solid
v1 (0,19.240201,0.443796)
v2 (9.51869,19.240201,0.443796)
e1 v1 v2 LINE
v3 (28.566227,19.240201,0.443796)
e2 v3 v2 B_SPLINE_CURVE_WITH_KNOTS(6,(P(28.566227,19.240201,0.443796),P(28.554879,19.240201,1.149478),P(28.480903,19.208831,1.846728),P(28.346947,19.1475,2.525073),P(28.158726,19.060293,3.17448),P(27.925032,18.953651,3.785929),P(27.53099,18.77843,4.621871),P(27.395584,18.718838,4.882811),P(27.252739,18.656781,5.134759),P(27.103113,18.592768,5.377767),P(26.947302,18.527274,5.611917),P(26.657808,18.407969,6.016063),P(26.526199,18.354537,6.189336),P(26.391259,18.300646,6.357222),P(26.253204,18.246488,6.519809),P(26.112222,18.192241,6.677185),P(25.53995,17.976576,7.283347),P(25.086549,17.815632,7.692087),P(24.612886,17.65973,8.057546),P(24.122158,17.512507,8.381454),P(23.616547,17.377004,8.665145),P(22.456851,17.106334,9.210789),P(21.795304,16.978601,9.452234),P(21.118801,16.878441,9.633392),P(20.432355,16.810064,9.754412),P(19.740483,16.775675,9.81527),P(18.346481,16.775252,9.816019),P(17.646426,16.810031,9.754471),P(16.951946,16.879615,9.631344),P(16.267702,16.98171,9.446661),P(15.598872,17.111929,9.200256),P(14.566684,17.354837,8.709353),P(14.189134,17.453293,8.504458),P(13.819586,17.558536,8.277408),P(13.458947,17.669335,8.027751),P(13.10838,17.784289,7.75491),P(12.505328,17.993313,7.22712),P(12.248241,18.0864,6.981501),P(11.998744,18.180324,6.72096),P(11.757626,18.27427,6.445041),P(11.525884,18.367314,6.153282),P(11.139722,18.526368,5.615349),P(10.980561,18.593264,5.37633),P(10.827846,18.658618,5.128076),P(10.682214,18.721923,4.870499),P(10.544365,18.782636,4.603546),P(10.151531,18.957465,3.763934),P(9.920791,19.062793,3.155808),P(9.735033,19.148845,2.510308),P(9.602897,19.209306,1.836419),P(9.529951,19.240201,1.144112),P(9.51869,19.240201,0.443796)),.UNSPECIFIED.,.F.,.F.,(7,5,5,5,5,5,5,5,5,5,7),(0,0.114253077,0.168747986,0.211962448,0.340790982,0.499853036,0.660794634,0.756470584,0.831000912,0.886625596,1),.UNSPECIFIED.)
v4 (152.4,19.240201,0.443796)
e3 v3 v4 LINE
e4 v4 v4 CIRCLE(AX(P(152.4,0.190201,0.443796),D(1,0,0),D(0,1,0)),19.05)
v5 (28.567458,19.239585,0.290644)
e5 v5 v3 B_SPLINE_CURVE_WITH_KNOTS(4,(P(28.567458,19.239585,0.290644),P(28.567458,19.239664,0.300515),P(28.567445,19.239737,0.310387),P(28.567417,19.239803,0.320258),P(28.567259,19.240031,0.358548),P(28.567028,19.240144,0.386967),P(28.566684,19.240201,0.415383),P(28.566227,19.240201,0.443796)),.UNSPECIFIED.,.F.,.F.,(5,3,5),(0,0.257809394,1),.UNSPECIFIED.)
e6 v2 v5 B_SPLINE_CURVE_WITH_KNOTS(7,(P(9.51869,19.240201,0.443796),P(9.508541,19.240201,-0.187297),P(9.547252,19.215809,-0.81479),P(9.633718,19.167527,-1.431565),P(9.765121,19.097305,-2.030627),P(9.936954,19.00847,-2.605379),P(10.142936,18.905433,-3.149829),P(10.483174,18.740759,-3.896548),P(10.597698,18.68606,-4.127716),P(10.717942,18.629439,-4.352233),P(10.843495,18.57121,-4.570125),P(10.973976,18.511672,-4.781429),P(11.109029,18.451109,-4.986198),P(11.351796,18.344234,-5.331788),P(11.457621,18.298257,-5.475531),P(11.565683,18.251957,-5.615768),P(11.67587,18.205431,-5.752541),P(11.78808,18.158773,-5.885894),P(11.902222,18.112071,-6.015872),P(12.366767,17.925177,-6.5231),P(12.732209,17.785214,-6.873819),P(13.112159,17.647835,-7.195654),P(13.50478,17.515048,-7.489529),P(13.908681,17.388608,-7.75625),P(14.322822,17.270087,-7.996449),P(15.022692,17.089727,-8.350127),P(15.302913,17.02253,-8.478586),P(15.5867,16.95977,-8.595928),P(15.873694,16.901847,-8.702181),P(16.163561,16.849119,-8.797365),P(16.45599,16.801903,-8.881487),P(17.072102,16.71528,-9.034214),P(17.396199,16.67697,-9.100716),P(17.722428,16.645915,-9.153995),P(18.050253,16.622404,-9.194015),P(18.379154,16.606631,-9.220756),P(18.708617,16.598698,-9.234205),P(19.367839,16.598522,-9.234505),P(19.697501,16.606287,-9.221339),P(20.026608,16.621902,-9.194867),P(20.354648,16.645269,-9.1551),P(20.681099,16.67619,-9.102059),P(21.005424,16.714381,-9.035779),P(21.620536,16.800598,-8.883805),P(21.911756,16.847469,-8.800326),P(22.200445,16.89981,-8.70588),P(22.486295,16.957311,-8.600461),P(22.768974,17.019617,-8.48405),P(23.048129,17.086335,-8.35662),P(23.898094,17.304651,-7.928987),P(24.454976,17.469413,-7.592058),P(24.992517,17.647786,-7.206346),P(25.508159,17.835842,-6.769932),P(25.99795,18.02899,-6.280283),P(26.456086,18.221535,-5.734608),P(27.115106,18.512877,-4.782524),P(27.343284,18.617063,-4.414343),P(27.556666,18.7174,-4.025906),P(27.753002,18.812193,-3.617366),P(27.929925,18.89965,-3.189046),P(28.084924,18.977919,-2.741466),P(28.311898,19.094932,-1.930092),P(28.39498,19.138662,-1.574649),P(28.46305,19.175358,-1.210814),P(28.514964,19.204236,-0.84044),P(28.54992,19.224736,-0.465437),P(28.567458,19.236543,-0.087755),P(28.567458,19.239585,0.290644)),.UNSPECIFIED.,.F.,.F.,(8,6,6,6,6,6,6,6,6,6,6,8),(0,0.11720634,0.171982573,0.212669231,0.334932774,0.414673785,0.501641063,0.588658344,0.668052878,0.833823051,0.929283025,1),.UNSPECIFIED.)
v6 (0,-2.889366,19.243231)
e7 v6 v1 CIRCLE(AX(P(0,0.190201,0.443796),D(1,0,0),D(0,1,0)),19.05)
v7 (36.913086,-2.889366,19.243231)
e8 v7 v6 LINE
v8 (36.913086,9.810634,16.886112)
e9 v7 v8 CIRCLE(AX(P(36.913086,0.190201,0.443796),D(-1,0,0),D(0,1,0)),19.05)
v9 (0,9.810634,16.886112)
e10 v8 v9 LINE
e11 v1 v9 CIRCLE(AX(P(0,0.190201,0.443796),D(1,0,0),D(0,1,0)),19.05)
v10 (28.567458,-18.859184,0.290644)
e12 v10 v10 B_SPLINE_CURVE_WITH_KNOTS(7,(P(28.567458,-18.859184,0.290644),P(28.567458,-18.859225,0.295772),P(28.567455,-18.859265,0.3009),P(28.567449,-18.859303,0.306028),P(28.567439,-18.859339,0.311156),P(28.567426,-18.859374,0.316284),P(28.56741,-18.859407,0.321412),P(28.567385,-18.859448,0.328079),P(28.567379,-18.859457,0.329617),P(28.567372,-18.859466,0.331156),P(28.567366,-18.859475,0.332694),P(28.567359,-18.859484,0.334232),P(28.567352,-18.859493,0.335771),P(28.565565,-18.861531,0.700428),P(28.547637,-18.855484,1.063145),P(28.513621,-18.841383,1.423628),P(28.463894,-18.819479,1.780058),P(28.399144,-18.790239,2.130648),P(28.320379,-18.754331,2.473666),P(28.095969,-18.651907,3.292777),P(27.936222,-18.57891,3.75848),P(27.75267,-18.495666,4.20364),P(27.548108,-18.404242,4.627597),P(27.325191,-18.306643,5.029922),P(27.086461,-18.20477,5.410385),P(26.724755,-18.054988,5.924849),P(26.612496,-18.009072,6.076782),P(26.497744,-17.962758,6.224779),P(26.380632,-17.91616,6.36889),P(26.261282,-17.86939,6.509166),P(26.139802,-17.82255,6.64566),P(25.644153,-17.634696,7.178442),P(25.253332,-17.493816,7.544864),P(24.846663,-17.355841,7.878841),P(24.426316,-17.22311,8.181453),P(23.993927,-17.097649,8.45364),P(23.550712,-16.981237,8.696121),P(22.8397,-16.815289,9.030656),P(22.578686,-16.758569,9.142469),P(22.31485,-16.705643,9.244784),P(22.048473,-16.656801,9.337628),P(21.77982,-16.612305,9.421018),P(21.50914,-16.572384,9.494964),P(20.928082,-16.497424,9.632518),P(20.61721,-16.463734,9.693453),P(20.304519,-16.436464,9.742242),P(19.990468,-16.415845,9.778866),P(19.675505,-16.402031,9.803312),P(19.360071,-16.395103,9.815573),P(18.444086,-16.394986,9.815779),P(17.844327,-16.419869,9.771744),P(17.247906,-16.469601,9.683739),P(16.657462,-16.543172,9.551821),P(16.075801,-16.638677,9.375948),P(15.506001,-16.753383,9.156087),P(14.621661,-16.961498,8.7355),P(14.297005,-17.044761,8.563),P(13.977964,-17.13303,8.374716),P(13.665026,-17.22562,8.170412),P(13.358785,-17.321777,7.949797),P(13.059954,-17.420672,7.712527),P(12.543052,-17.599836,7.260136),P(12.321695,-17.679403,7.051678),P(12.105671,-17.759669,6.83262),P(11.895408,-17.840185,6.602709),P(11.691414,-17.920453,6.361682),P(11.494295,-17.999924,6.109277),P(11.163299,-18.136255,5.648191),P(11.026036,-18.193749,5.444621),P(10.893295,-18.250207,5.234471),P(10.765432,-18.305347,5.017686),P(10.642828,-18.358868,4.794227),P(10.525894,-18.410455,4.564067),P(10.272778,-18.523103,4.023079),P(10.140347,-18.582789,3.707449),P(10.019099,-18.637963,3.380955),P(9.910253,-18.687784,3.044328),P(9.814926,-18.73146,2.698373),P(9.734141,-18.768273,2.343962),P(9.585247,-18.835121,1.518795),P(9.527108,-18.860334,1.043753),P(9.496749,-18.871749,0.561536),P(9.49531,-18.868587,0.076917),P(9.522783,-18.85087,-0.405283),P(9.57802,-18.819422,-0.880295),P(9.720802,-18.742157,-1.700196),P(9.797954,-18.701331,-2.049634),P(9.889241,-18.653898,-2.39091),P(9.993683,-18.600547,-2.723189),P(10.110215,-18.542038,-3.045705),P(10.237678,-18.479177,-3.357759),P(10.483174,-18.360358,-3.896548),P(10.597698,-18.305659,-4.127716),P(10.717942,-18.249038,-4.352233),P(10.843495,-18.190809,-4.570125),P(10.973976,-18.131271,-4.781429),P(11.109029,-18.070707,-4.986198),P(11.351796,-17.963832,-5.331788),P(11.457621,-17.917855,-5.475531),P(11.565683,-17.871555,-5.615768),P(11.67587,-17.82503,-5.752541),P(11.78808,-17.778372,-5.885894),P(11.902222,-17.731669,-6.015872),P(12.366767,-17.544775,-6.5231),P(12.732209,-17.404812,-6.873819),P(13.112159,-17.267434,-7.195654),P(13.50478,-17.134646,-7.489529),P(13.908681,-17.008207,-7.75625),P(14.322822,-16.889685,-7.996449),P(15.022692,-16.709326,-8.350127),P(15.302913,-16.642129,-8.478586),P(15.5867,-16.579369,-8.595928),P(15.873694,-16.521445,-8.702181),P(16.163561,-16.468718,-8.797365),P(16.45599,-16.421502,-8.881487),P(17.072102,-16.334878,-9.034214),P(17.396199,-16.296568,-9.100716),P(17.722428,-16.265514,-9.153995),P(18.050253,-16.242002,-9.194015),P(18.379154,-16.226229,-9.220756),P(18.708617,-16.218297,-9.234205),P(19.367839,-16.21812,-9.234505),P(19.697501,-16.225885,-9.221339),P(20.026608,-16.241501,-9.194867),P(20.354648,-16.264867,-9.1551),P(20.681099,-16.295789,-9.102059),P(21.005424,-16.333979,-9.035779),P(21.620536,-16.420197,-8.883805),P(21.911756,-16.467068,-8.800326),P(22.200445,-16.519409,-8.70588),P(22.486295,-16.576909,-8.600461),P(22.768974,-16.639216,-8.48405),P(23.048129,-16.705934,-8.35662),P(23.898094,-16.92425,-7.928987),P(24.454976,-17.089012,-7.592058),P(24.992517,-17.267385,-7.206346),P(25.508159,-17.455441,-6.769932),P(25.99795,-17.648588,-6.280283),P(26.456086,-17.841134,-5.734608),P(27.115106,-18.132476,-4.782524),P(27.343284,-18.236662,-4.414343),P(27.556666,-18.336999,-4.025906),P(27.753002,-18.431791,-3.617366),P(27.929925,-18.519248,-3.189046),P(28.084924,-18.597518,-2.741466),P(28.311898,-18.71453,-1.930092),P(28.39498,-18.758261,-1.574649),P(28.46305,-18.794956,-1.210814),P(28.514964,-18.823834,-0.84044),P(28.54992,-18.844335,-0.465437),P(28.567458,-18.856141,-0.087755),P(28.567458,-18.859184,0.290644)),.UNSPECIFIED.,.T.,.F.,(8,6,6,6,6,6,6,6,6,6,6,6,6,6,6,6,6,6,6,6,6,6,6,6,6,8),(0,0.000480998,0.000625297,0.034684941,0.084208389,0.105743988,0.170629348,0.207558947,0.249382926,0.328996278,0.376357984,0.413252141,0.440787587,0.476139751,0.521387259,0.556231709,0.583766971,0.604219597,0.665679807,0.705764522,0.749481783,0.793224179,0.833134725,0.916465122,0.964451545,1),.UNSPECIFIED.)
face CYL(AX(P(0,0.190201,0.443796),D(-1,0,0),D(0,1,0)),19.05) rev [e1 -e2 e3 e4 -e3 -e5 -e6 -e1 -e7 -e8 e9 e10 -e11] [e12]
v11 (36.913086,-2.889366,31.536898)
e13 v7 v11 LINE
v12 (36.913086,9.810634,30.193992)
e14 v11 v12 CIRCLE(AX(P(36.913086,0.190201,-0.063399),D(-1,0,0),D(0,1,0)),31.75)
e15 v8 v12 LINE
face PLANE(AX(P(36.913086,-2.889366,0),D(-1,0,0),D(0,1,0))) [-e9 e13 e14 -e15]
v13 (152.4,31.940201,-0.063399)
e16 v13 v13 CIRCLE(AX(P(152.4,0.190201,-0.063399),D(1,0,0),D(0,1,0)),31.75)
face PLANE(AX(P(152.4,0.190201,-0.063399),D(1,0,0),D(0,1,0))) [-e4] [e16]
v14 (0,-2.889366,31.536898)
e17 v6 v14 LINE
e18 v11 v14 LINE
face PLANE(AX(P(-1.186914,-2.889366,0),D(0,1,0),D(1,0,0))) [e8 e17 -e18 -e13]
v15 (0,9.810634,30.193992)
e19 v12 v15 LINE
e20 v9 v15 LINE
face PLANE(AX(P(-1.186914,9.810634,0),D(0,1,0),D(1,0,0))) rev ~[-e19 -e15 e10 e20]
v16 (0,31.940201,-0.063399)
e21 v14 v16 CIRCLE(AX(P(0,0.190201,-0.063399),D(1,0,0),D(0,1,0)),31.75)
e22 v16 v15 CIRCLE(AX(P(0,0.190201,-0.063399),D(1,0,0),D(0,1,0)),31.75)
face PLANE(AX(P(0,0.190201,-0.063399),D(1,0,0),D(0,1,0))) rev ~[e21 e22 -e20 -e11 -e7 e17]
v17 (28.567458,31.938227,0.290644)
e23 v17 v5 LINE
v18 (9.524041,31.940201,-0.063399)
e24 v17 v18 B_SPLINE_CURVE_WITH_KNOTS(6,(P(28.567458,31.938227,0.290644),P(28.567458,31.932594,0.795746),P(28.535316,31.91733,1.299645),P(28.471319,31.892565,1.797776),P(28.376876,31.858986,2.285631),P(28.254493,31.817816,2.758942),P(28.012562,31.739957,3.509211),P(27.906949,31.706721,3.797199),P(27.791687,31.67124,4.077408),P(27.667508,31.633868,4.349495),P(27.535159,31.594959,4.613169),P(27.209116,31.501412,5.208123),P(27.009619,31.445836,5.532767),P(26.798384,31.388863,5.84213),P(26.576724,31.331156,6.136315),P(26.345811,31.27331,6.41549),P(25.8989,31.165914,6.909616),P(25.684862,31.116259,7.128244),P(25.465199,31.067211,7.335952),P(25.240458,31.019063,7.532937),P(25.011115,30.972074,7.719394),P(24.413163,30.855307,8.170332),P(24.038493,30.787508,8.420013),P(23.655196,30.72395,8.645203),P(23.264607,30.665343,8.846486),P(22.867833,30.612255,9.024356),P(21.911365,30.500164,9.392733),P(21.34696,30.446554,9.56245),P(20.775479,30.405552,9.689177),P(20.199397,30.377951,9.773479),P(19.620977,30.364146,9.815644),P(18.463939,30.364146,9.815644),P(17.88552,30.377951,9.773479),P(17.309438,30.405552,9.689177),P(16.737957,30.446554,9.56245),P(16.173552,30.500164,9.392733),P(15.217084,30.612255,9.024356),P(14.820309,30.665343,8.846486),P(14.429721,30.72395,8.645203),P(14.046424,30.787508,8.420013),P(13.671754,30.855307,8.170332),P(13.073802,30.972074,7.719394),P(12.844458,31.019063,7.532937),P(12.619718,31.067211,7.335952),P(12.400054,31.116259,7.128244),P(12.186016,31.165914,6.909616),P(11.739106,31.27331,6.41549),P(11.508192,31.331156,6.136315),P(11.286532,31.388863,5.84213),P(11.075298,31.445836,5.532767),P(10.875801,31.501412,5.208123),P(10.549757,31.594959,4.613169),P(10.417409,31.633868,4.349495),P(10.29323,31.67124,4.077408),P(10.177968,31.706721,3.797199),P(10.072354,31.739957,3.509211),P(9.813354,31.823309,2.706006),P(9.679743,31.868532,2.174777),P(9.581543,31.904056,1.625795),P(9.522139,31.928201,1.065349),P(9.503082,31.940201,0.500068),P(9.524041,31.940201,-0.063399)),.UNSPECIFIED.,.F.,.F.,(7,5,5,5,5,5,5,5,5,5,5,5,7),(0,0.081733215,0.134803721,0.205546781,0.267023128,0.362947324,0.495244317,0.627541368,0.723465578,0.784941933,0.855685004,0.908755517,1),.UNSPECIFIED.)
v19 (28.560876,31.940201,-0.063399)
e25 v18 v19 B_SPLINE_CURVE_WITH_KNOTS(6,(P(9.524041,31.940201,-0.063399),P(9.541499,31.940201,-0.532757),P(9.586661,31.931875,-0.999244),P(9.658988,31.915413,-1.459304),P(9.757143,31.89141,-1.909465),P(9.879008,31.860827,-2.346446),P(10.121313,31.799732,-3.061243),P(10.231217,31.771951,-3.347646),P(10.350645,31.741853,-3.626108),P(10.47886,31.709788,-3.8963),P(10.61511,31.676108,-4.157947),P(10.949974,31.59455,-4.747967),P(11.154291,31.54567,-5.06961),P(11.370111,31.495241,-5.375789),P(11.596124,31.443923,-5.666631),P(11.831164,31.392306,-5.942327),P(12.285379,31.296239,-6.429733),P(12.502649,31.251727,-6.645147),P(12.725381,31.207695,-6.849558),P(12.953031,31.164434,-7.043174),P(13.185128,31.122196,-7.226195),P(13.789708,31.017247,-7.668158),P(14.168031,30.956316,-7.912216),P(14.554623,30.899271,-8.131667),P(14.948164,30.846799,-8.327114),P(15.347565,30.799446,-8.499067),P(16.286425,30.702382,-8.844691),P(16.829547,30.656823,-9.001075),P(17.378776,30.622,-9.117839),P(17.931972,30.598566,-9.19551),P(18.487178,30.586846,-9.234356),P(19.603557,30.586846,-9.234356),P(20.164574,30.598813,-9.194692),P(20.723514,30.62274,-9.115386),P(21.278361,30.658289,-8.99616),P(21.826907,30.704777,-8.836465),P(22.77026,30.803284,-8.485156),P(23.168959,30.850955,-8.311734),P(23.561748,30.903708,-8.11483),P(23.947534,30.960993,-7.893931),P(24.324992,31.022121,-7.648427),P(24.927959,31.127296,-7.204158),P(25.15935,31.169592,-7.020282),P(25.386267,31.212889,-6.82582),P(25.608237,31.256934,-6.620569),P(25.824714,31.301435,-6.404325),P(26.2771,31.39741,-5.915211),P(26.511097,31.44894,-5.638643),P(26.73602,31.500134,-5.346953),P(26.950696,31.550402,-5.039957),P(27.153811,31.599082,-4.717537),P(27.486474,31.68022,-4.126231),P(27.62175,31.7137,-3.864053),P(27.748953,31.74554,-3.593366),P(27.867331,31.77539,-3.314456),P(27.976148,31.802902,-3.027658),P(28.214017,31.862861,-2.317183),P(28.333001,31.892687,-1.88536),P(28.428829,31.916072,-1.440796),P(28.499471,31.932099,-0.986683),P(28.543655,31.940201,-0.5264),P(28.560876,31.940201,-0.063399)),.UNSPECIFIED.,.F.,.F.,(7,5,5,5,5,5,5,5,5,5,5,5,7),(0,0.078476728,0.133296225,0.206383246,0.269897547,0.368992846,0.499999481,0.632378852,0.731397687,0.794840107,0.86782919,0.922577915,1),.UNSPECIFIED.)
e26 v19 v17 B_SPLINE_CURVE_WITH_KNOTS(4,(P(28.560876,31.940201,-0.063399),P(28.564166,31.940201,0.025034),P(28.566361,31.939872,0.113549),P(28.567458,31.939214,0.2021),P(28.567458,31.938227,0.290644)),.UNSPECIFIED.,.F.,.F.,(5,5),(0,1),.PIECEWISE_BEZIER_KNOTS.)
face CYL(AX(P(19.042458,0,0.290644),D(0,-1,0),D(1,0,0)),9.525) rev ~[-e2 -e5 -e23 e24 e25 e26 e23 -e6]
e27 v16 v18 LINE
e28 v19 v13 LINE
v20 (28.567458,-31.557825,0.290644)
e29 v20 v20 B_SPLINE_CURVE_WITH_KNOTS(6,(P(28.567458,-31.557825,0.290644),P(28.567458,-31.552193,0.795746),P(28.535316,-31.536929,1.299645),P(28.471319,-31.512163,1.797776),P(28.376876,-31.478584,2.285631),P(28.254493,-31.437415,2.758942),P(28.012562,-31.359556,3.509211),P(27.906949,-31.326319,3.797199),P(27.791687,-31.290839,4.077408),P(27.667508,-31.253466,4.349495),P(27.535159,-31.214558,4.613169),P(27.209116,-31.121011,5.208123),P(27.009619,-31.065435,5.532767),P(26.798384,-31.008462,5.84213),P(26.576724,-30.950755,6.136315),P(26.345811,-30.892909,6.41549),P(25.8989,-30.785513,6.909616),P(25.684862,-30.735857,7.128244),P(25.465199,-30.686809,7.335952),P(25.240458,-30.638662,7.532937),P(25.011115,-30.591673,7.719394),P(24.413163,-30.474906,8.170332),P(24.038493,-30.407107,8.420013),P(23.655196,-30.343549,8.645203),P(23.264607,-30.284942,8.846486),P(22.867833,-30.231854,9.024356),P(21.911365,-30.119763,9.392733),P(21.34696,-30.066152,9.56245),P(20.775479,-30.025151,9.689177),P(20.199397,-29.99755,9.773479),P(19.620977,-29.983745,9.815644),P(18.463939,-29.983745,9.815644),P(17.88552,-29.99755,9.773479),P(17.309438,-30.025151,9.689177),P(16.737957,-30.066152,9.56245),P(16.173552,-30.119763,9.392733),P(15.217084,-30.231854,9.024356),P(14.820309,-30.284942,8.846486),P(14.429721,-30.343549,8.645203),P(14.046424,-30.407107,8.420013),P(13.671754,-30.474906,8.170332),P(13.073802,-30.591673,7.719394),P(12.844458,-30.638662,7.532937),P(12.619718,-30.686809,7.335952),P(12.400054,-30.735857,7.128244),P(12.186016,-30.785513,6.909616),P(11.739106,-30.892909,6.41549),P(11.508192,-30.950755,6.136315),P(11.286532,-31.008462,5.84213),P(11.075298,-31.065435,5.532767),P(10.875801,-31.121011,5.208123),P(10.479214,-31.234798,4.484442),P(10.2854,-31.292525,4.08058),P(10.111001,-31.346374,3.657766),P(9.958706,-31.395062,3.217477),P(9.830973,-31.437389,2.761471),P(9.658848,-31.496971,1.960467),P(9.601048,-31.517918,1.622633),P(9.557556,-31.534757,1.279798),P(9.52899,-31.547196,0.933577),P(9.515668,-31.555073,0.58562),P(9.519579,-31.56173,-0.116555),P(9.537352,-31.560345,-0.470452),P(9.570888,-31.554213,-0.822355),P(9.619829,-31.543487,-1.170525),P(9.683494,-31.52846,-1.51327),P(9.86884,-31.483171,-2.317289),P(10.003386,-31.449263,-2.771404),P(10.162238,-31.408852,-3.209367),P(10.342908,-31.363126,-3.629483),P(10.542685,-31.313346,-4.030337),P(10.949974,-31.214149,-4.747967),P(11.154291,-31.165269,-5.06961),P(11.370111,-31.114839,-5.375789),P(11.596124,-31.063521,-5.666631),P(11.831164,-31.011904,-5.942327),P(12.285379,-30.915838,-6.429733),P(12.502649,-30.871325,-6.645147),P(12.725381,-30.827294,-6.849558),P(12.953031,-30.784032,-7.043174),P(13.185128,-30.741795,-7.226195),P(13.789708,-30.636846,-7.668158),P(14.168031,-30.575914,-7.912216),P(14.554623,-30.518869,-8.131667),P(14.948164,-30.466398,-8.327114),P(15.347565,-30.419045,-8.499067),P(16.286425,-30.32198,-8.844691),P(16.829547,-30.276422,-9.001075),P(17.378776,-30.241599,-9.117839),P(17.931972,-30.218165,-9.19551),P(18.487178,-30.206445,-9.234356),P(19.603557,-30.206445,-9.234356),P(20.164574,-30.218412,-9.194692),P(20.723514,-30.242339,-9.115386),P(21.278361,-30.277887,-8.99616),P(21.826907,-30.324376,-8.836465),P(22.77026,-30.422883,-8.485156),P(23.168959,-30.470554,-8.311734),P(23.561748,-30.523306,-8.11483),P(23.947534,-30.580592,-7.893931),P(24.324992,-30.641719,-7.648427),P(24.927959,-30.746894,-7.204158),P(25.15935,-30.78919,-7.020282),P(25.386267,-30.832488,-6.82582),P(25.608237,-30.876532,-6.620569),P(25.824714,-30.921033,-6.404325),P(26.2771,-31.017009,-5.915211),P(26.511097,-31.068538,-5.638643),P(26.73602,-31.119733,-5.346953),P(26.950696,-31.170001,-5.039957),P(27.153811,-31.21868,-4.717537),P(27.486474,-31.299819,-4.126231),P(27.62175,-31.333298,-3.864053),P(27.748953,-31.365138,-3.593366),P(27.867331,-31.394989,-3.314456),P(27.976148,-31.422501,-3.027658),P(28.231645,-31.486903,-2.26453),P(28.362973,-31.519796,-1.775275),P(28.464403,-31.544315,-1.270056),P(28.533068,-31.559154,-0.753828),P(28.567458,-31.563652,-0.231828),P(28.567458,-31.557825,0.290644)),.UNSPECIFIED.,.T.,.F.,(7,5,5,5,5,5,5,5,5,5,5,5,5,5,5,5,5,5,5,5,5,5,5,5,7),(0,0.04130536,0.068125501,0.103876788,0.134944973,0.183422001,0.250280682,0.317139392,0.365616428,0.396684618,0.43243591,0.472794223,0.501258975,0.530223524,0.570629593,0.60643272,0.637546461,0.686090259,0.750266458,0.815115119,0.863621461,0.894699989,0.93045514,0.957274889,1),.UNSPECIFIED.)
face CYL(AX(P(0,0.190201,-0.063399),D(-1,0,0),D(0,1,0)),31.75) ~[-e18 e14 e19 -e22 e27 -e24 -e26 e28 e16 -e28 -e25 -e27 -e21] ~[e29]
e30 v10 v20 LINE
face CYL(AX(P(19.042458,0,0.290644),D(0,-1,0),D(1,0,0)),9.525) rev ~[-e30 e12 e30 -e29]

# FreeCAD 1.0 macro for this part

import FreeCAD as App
import Part
import Sketcher
Q = App.Units.Quantity


def add_polygon(sketch, points):
    """Adds a closed chain of lines whose ends are joined by coincident constraints."""
    first, n = sketch.GeometryCount, len(points)
    for a, b in zip(points, points[1:] + points[:1]):
        sketch.addGeometry(Part.LineSegment(App.Vector(*a, 0), App.Vector(*b, 0)), False)
    for i in range(n):
        sketch.addConstraint(Sketcher.Constraint("Coincident", first + i, 2, first + (i + 1) % n, 1))

doc = App.newDocument("Part")
body = doc.addObject("PartDesign::Body", "Body")

# Sketch on YZ plane
sketch1 = body.newObject("Sketcher::SketchObject", "Sketch")
sketch1.AttachmentSupport = (doc.getObject("YZ_Plane"), [""])
sketch1.MapMode = "FlatFace"
sketch1.addGeometry(Part.Circle(App.Vector(0, 0, 0), App.Vector(0, 0, 1), 32), False)
sketch1.addConstraint(Sketcher.Constraint("Diameter", 0, Q("2.5 in")))
sketch1.addConstraint(Sketcher.Constraint("DistanceX", -1, 1, 0, 3, Q("0.190201 mm")))
sketch1.addConstraint(Sketcher.Constraint("DistanceY", 0, 3, -1, 1, Q("0.063399 mm")))
pad1 = body.newObject("PartDesign::Pad", "Pad")
pad1.Profile = sketch1
pad1.Length = Q("6 in")

# Sketch on YZ plane
sketch2 = body.newObject("Sketcher::SketchObject", "Sketch001")
sketch2.AttachmentSupport = (doc.getObject("YZ_Plane"), [""])
sketch2.MapMode = "FlatFace"
sketch2.addGeometry(Part.Circle(App.Vector(0, 0, 0), App.Vector(0, 0, 1), 19), False)
sketch2.addConstraint(Sketcher.Constraint("Diameter", 0, Q("1.5 in")))
sketch2.addConstraint(Sketcher.Constraint("DistanceX", -1, 1, 0, 3, Q("0.190201 mm")))
sketch2.addConstraint(Sketcher.Constraint("DistanceY", -1, 1, 0, 3, Q("0.443796 mm")))
pocket1 = body.newObject("PartDesign::Pocket", "Pocket")
pocket1.Profile = sketch2
pocket1.Length = Q("6 in")
pocket1.Reversed = True

# Sketch on XZ plane
sketch3 = body.newObject("Sketcher::SketchObject", "Sketch002")
sketch3.AttachmentSupport = (doc.getObject("XZ_Plane"), [""])
sketch3.MapMode = "FlatFace"
sketch3.addGeometry(Part.Circle(App.Vector(19, 0, 0), App.Vector(0, 0, 1), 10), False)
sketch3.addConstraint(Sketcher.Constraint("Diameter", 0, Q("0.75 in")))
sketch3.addConstraint(Sketcher.Constraint("DistanceX", -1, 1, 0, 3, Q("19.042458 mm")))
sketch3.addConstraint(Sketcher.Constraint("DistanceY", -1, 1, 0, 3, Q("0.290644 mm")))
pocket2 = body.newObject("PartDesign::Pocket", "Pocket001")
pocket2.Profile = sketch3
pocket2.Length = Q("3 in")
pocket2.Midplane = True

# Sketch on XY plane
sketch4 = body.newObject("Sketcher::SketchObject", "Sketch003")
sketch4.AttachmentSupport = (doc.getObject("XY_Plane"), [""])
sketch4.MapMode = "FlatFace"
add_polygon(sketch4, [(-1, 10), (-1, -3), (37, -3), (37, 10)])  # lines 0-3
sketch4.addConstraint(Sketcher.Constraint("Vertical", 0))
sketch4.addConstraint(Sketcher.Constraint("Horizontal", 1))
sketch4.addConstraint(Sketcher.Constraint("Vertical", 2))
sketch4.addConstraint(Sketcher.Constraint("Horizontal", 3))
sketch4.addConstraint(Sketcher.Constraint("DistanceX", 1, 1, 1, 2, Q("1.5 in")))
sketch4.addConstraint(Sketcher.Constraint("DistanceY", 0, 2, 0, 1, Q("0.5 in")))
sketch4.addConstraint(Sketcher.Constraint("DistanceX", 0, 2, -1, 1, Q("1.186914 mm")))
sketch4.addConstraint(Sketcher.Constraint("DistanceY", 0, 2, -1, 1, Q("2.889366 mm")))
pocket3 = body.newObject("PartDesign::Pocket", "Pocket002")
pocket3.Profile = sketch4
pocket3.Length = Q("2 in")
pocket3.Reversed = True

doc.recompute()
